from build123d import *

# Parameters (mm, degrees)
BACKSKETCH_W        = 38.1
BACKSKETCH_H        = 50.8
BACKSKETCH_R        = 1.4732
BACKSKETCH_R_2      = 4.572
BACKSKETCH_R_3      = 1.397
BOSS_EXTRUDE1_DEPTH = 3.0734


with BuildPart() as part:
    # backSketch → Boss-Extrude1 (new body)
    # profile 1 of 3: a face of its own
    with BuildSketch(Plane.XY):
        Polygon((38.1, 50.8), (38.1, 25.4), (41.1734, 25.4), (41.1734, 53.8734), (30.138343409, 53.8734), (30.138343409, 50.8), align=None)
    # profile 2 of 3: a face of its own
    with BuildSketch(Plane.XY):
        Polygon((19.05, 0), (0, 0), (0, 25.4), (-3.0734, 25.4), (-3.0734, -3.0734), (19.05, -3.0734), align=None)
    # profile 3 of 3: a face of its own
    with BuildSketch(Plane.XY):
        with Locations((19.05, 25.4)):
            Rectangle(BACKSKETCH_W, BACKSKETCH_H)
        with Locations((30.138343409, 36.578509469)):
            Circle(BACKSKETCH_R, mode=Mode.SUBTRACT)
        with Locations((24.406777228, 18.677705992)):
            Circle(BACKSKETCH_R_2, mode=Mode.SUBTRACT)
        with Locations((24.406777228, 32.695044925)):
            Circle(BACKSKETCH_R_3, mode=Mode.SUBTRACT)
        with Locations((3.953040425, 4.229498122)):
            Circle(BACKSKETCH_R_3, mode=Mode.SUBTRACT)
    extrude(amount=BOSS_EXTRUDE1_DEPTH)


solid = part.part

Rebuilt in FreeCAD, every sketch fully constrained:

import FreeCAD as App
import Part
import Sketcher

V = App.Vector
Q = App.Units.Quantity


def add_polygon(sketch, points):
    """Adds a closed chain of lines whose ends are joined by coincident constraints."""
    first, n = sketch.GeometryCount, len(points)
    for a, b in zip(points, points[1:] + points[:1]):
        sketch.addGeometry(Part.LineSegment(App.Vector(*a, 0), App.Vector(*b, 0)), False)
    for i in range(n):
        sketch.addConstraint(Sketcher.Constraint("Coincident", first + i, 2, first + (i + 1) % n, 1))

doc = App.newDocument("Part")
body = doc.addObject("PartDesign::Body", "Body")

sketch1 = doc.addObject("Sketcher::SketchObject", "Sketch")
body.addObject(sketch1)
sketch1.AttachmentSupport = (doc.XY_Plane, [""])
sketch1.MapMode = "FlatFace"
add_polygon(sketch1, [(38.1, 25.4), (41.2, 25.4), (41.2, 53.9), (30.1, 53.9), (30.1, 50.8), (0, 50.8), (0, 25.4), (-3.1, 25.4), (-3.1, -3.1), (19.1, -3.1), (19.1, 0), (38.1, 0)])
sketch1.addGeometry(Part.Circle(V(24.4, 32.7, 0), V(0, 0, 1), 1.4), False)
sketch1.addGeometry(Part.Circle(V(30.1, 36.6, 0), V(0, 0, 1), 1.5), False)
sketch1.addGeometry(Part.Circle(V(4, 4.2, 0), V(0, 0, 1), 1.4), False)
sketch1.addGeometry(Part.Circle(V(24.4, 18.7, 0), V(0, 0, 1), 4.6), False)
sketch1.addConstraint(Sketcher.Constraint("Horizontal", 0))
sketch1.addConstraint(Sketcher.Constraint("Vertical", 1))
sketch1.addConstraint(Sketcher.Constraint("Horizontal", 2))
sketch1.addConstraint(Sketcher.Constraint("Vertical", 3))
sketch1.addConstraint(Sketcher.Constraint("Horizontal", 4))
sketch1.addConstraint(Sketcher.Constraint("Vertical", 5))
sketch1.addConstraint(Sketcher.Constraint("Horizontal", 6))
sketch1.addConstraint(Sketcher.Constraint("Vertical", 7))
sketch1.addConstraint(Sketcher.Constraint("Horizontal", 8))
sketch1.addConstraint(Sketcher.Constraint("Vertical", 9))
sketch1.addConstraint(Sketcher.Constraint("Horizontal", 10))
sketch1.addConstraint(Sketcher.Constraint("Vertical", 11))
sketch1.addConstraint(Sketcher.Constraint("Equal", 12, 14))
sketch1.addConstraint(Sketcher.Constraint("PointOnObject", 4, 2, -2))
sketch1.addConstraint(Sketcher.Constraint("PointOnObject", 9, 2, -1))
sketch1.addConstraint(Sketcher.Constraint("Horizontal", 0, 2, 5, 2))
sketch1.addConstraint(Sketcher.Constraint("Vertical", 12, 3, 15, 3))
sketch1.addConstraint(Sketcher.Constraint("Vertical", 13, 3, 2, 2))
sketch1.addConstraint(Sketcher.Constraint("Equal", 0, 6))
sketch1.addConstraint(Sketcher.Constraint("Equal", 6, 3))
sketch1.addConstraint(Sketcher.Constraint("Equal", 1, 7))
sketch1.addConstraint(Sketcher.Constraint("Equal", 3, 9))
sketch1.addConstraint(Sketcher.Constraint("Diameter", 12, Q("0.11 in")))
sketch1.addConstraint(Sketcher.Constraint("Diameter", 15, Q("0.36 in")))
sketch1.addConstraint(Sketcher.Constraint("DistanceY", 5, 2, 5, 1, Q("1 in")))
sketch1.addConstraint(Sketcher.Constraint("Diameter", 13, Q("0.116 in")))
sketch1.addConstraint(Sketcher.Constraint("DistanceX", 10, 1, 10, 2, Q("0.75 in")))
sketch1.addConstraint(Sketcher.Constraint("DistanceX", -1, 1, 10, 2, Q("1.5 in")))
sketch1.addConstraint(Sketcher.Constraint("DistanceX", 0, 1, 0, 2, Q("0.121 in")))
sketch1.addConstraint(Sketcher.Constraint("DistanceY", -1, 1, 14, 3, 4.229498))
sketch1.addConstraint(Sketcher.Constraint("DistanceX", 2, 2, 2, 1, 11.035057))
sketch1.addConstraint(Sketcher.Constraint("DistanceY", -1, 1, 13, 3, 36.578509))
sketch1.addConstraint(Sketcher.Constraint("DistanceX", -1, 1, 14, 3, 3.95304))
sketch1.addConstraint(Sketcher.Constraint("DistanceY", 15, 3, 12, 3, 14.017339))
sketch1.addConstraint(Sketcher.Constraint("DistanceX", -1, 1, 12, 3, 24.406777))
sketch1.addConstraint(Sketcher.Constraint("DistanceY", -1, 1, 12, 3, 32.695045))
pad1 = doc.addObject("PartDesign::Pad", "Pad")
body.addObject(pad1)
pad1.Profile = sketch1
pad1.Length = Q("0.121 in")

doc.recompute()
